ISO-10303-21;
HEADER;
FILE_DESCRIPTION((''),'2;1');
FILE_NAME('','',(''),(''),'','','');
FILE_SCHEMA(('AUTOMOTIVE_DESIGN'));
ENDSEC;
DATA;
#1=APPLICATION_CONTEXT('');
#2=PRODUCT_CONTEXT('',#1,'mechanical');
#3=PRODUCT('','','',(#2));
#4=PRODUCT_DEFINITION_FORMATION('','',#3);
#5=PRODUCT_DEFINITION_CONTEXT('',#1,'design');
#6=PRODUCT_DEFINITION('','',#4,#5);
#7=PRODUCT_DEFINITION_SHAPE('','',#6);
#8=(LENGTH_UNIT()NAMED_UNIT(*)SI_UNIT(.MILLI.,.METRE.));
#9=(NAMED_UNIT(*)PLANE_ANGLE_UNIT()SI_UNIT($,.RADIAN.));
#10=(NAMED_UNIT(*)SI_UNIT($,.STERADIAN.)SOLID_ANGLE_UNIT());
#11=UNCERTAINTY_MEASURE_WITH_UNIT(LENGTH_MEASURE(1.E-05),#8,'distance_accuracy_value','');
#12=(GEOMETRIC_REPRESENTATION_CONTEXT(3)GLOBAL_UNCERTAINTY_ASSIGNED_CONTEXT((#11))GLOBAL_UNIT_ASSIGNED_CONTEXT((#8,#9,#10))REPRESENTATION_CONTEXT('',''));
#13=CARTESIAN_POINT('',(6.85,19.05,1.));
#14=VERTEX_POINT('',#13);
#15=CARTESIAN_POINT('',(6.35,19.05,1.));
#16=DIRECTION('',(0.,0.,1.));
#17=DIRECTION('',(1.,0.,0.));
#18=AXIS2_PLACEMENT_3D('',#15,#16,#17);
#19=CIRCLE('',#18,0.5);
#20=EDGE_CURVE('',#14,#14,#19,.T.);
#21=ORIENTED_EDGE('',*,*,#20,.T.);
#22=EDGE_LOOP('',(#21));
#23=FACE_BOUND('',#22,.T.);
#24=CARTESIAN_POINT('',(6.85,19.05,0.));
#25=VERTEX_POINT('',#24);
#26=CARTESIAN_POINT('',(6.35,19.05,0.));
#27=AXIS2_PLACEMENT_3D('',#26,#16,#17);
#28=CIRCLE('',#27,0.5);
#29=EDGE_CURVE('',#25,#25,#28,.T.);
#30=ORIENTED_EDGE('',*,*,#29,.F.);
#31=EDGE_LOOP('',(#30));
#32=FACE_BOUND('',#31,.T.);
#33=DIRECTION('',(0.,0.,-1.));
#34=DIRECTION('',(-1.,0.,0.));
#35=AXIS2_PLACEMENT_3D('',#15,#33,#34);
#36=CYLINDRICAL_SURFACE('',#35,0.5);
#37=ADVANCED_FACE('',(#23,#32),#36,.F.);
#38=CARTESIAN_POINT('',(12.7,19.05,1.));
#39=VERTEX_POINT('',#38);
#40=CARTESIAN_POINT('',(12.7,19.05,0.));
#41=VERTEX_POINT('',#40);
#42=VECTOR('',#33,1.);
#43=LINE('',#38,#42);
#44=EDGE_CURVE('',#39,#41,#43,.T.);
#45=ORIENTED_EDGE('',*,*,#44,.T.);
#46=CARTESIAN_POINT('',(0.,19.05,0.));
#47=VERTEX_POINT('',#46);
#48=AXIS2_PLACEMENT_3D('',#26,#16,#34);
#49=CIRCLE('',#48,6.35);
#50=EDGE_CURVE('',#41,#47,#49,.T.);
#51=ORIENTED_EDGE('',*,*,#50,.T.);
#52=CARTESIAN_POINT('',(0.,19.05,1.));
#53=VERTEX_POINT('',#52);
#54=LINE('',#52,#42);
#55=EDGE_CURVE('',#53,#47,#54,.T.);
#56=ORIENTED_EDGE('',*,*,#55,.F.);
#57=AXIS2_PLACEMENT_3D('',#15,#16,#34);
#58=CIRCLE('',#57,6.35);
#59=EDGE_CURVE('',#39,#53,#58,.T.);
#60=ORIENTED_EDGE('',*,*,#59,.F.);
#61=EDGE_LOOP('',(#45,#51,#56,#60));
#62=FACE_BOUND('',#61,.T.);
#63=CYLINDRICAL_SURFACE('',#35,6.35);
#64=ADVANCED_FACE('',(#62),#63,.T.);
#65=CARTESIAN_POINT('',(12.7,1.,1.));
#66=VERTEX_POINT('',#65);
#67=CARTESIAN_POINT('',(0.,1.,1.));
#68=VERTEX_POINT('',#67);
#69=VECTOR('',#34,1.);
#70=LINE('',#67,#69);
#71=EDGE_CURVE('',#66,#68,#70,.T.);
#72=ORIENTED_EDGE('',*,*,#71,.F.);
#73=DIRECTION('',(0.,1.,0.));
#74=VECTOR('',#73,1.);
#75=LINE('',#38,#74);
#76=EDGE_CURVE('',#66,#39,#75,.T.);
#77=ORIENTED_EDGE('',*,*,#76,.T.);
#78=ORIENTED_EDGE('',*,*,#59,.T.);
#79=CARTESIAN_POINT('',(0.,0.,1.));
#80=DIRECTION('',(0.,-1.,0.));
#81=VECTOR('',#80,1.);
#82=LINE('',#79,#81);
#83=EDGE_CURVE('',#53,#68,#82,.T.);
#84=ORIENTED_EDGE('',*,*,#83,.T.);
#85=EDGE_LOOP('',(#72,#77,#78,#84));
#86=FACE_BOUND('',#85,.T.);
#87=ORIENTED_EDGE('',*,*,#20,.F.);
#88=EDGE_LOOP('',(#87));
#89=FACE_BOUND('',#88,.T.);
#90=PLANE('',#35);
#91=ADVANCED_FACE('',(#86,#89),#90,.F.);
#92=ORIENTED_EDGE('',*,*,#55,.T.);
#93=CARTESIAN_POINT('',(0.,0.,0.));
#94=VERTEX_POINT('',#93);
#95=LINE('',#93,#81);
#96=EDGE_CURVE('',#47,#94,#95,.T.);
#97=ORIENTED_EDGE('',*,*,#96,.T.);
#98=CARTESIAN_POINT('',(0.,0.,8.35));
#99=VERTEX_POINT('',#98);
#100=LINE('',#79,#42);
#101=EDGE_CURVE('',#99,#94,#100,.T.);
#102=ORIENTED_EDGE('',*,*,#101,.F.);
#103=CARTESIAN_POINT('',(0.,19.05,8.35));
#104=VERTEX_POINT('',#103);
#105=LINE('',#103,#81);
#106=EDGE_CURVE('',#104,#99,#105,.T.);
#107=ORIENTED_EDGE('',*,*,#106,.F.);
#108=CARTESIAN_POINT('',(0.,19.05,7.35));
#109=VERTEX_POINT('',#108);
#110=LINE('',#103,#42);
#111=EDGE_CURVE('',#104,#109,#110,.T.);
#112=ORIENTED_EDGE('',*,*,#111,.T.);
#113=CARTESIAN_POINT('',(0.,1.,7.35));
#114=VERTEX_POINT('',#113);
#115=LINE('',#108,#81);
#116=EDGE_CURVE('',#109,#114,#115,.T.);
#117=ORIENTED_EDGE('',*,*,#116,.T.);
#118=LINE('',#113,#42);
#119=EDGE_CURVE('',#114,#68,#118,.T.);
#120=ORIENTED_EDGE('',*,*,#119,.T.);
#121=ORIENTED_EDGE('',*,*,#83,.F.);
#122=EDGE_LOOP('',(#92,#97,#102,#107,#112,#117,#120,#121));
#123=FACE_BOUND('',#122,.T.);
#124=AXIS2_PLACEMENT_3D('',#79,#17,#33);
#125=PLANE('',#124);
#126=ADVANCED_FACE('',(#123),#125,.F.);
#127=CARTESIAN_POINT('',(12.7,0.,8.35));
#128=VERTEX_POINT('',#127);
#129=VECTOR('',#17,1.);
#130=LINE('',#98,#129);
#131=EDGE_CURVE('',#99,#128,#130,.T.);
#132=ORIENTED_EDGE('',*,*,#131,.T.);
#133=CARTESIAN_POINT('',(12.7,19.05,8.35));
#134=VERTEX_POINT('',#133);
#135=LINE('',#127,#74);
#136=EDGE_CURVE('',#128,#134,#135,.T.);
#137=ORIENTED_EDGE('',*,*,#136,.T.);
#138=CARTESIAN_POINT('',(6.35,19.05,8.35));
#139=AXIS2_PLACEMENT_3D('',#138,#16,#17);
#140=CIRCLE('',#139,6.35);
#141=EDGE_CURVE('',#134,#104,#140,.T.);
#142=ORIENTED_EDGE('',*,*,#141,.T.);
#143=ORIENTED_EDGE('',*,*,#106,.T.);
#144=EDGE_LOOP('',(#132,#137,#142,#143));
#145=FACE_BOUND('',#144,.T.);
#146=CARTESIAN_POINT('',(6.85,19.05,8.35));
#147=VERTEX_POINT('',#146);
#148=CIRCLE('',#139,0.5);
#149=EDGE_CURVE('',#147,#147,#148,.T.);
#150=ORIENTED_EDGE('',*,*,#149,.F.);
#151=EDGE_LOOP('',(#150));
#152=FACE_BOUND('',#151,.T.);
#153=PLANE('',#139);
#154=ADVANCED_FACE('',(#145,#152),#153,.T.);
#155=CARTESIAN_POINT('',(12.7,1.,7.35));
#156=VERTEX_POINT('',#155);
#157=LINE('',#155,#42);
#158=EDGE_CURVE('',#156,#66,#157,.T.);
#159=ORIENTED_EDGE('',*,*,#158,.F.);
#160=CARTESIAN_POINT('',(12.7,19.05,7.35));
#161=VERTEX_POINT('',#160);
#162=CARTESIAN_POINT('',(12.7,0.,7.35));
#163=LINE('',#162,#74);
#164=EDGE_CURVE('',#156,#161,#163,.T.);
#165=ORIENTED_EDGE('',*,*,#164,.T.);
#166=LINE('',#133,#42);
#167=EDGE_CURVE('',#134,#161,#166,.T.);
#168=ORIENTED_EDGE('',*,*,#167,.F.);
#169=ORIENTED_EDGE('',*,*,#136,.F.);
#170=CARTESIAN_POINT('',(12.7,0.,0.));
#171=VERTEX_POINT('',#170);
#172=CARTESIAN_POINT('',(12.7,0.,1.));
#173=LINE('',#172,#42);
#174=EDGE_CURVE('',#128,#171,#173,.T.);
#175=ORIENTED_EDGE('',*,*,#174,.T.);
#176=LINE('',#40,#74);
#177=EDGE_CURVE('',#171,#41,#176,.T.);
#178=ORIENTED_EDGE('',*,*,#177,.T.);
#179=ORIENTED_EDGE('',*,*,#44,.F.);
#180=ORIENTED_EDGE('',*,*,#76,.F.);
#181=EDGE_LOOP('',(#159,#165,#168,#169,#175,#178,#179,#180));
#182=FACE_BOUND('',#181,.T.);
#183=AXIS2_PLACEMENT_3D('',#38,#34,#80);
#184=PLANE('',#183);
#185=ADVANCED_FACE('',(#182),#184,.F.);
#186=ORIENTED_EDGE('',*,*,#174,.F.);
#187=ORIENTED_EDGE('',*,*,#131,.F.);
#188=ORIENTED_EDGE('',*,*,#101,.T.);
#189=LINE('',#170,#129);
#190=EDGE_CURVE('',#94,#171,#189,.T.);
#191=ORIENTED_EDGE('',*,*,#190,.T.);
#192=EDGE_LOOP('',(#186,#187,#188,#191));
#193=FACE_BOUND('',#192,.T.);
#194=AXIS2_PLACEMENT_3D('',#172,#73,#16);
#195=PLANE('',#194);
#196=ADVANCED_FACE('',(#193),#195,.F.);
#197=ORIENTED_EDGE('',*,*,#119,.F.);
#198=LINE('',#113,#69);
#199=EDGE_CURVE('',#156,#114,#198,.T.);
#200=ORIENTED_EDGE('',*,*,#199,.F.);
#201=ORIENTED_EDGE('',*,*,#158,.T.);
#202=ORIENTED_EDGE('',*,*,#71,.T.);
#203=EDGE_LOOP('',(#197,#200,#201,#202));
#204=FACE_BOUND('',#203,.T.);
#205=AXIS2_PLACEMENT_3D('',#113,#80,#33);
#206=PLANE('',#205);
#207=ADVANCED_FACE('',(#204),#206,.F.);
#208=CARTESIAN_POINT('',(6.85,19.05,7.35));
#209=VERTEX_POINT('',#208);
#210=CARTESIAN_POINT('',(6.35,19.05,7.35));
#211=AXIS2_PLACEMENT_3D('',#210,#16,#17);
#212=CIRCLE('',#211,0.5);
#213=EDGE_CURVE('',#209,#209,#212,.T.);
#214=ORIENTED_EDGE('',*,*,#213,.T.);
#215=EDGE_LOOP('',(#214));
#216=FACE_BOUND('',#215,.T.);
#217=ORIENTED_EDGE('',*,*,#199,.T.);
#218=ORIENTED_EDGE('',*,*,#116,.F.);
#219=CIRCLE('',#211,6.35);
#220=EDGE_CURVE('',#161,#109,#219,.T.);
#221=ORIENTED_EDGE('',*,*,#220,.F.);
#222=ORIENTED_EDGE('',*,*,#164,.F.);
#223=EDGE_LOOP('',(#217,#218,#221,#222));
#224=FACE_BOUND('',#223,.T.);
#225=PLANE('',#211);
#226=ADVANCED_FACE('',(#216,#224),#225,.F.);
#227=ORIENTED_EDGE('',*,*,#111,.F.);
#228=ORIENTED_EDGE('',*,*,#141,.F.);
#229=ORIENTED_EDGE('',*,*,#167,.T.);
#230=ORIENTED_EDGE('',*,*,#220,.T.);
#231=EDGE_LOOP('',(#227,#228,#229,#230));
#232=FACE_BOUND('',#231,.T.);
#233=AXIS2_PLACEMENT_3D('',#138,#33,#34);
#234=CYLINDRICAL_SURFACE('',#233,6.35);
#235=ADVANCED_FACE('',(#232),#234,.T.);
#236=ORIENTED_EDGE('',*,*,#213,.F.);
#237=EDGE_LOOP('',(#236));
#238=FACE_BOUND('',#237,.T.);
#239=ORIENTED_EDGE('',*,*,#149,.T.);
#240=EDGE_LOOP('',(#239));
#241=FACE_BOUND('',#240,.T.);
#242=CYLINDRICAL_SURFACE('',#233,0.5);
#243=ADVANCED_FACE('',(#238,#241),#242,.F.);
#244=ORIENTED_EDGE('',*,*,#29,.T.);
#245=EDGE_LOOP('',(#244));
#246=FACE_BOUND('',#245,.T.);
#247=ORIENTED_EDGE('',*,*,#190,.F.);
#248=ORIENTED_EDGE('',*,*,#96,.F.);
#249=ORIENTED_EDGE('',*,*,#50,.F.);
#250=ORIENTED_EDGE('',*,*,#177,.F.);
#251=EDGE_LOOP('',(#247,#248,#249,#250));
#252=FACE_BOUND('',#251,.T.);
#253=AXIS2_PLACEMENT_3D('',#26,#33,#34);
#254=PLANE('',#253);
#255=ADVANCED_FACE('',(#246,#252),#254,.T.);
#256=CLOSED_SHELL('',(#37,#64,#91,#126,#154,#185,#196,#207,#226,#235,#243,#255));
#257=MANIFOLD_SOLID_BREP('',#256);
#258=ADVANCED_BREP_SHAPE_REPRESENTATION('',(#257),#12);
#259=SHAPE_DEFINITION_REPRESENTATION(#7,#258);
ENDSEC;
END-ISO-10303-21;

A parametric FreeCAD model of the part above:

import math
import FreeCAD as App
import Part
import Sketcher
Q = App.Units.Quantity

doc = App.newDocument("Part")
body = doc.addObject("PartDesign::Body", "Body")

# Sketch on XY plane
sketch1 = doc.addObject("Sketcher::SketchObject", "Sketch")
body.addObject(sketch1)
sketch1.AttachmentSupport = (doc.XY_Plane, [""])
sketch1.MapMode = "FlatFace"
sketch1.addGeometry([
    Part.LineSegment(App.Vector(0, 19.05, 0), App.Vector(0, 0, 0)),  # 0
    Part.LineSegment(App.Vector(0, 0, 0), App.Vector(12.7, 0, 0)),  # 1
    Part.LineSegment(App.Vector(12.7, 0, 0), App.Vector(12.7, 19.05, 0)),  # 2
    Part.ArcOfCircle(Part.Circle(App.Vector(6.35, 19.05, 0), App.Vector(0, 0, 1), 6.35), math.radians(0), math.radians(180)),  # 3
    Part.Circle(App.Vector(6.35, 19.05, 0), App.Vector(0, 0, 1), 0.5),  # 4
], False)
sketch1.addConstraint([
    Sketcher.Constraint("Coincident", 0, 2, 1, 1),
    Sketcher.Constraint("Coincident", 1, 2, 2, 1),
    Sketcher.Constraint("Tangent", 2, 2, 3, 1),
    Sketcher.Constraint("Tangent", 3, 2, 0, 1),
    Sketcher.Constraint("Vertical", 0),
    Sketcher.Constraint("Horizontal", 1),
    Sketcher.Constraint("Vertical", 2),
    Sketcher.Constraint("Coincident", 0, 2, -1, 1),
    Sketcher.Constraint("Coincident", 4, 3, 3, 3),
    Sketcher.Constraint("Radius", 3, Q("0.25 in")),
    Sketcher.Constraint("DistanceY", 0, 2, 0, 1, Q("0.75 in")),
    Sketcher.Constraint("Diameter", 4, Q("1 mm")),
])
pad1 = doc.addObject("PartDesign::Pad", "Pad")
body.addObject(pad1)
pad1.Profile = sketch1
pad1.Length = 1

# Sketch on XY plane
sketch2 = doc.addObject("Sketcher::SketchObject", "Sketch001")
body.addObject(sketch2)
sketch2.AttachmentSupport = (doc.XY_Plane, [""])
sketch2.MapMode = "FlatFace"
sketch2.AttachmentOffset = App.Placement(App.Vector(0, 0, 1), App.Rotation())
sketch2.addGeometry([
    Part.LineSegment(App.Vector(0, 1, 0), App.Vector(0, 0, 0)),
    Part.LineSegment(App.Vector(0, 0, 0), App.Vector(12.7, 0, 0)),
    Part.LineSegment(App.Vector(12.7, 0, 0), App.Vector(12.7, 1, 0)),
    Part.LineSegment(App.Vector(12.7, 1, 0), App.Vector(0, 1, 0)),
], False)
sketch2.addConstraint([
    Sketcher.Constraint("Coincident", 0, 2, 1, 1),
    Sketcher.Constraint("Coincident", 1, 2, 2, 1),
    Sketcher.Constraint("Coincident", 2, 2, 3, 1),
    Sketcher.Constraint("Coincident", 3, 2, 0, 1),
    Sketcher.Constraint("Vertical", 0),
    Sketcher.Constraint("Horizontal", 1),
    Sketcher.Constraint("Vertical", 2),
    Sketcher.Constraint("Horizontal", 3),
    Sketcher.Constraint("Coincident", 0, 2, -1, 1),
    Sketcher.Constraint("DistanceX", 1, 1, 1, 2, Q("0.5 in")),
    Sketcher.Constraint("DistanceY", 0, 2, 0, 1, Q("1 mm")),
])
pad2 = doc.addObject("PartDesign::Pad", "Pad001")
body.addObject(pad2)
pad2.Profile = sketch2
pad2.Length = Q("0.25 in")

# Sketch on XY plane
sketch3 = doc.addObject("Sketcher::SketchObject", "Sketch002")
body.addObject(sketch3)
sketch3.AttachmentSupport = (doc.XY_Plane, [""])
sketch3.MapMode = "FlatFace"
sketch3.AttachmentOffset = App.Placement(App.Vector(0, 0, 7.35), App.Rotation())
sketch3.addGeometry([
    Part.LineSegment(App.Vector(0, 0, 0), App.Vector(12.7, 0, 0)),  # 0
    Part.LineSegment(App.Vector(12.7, 0, 0), App.Vector(12.7, 19.05, 0)),  # 1
    Part.ArcOfCircle(Part.Circle(App.Vector(6.35, 19.05, 0), App.Vector(0, 0, 1), 6.35), math.radians(0), math.radians(180)),  # 2
    Part.LineSegment(App.Vector(0, 19.05, 0), App.Vector(0, 0, 0)),  # 3
    Part.Circle(App.Vector(6.35, 19.05, 0), App.Vector(0, 0, 1), 0.5),  # 4
], False)
sketch3.addConstraint([
    Sketcher.Constraint("Coincident", 0, 2, 1, 1),
    Sketcher.Constraint("Tangent", 1, 2, 2, 1),
    Sketcher.Constraint("Tangent", 2, 2, 3, 1),
    Sketcher.Constraint("Coincident", 3, 2, 0, 1),
    Sketcher.Constraint("Horizontal", 0),
    Sketcher.Constraint("Vertical", 1),
    Sketcher.Constraint("Vertical", 3),
    Sketcher.Constraint("Coincident", 3, 2, -1, 1),
    Sketcher.Constraint("Coincident", 4, 3, 2, 3),
    Sketcher.Constraint("Radius", 2, Q("0.25 in")),
    Sketcher.Constraint("DistanceY", 1, 1, 1, 2, Q("0.75 in")),
    Sketcher.Constraint("Diameter", 4, Q("1 mm")),
])
pad3 = doc.addObject("PartDesign::Pad", "Pad002")
body.addObject(pad3)
pad3.Profile = sketch3
pad3.Length = 1

doc.recompute()
